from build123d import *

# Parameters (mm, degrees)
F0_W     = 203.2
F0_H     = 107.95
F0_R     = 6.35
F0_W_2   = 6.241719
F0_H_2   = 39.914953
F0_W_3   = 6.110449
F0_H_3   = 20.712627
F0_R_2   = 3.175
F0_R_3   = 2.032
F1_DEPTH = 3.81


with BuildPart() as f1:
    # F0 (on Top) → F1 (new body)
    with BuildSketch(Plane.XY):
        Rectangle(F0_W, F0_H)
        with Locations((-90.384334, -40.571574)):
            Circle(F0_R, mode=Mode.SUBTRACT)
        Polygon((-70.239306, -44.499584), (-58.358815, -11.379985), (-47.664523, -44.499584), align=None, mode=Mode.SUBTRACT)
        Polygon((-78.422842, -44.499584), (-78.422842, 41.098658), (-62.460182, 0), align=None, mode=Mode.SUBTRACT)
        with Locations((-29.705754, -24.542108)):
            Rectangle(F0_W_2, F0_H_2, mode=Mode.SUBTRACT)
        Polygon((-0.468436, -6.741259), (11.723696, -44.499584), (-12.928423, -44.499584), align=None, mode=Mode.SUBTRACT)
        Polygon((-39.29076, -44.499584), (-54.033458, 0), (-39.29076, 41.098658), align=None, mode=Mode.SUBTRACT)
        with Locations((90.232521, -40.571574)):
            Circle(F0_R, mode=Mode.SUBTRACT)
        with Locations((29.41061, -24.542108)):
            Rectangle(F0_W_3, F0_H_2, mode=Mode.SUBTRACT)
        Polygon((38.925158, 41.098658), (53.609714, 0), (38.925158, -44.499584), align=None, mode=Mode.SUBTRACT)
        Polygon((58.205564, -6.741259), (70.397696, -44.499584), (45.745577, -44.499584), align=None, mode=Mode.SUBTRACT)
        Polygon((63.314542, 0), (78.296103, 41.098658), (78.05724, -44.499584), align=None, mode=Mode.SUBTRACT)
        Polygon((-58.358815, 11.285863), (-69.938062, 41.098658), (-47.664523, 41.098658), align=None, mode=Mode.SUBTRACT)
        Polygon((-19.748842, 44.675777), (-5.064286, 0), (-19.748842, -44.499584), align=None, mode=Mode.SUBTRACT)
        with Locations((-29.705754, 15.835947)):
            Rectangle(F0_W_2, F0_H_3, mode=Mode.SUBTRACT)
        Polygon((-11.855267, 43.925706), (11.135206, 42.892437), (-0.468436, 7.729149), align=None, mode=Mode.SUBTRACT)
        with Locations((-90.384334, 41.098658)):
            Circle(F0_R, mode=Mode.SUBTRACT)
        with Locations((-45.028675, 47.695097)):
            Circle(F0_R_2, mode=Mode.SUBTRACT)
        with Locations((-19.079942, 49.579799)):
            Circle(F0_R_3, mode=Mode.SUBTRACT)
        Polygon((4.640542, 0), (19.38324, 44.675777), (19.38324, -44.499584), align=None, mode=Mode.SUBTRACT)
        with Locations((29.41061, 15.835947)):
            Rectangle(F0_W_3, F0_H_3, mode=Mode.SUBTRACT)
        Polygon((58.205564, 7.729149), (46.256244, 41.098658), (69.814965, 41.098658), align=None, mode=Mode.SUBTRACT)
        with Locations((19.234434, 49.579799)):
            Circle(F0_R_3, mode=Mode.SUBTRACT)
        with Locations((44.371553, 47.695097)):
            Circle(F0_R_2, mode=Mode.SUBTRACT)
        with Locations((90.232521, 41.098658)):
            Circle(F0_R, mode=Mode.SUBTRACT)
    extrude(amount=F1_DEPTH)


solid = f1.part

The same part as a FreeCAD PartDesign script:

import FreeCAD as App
import Part
import Sketcher

V = App.Vector
Q = App.Units.Quantity


def add_polygon(sketch, points):
    """Adds a closed chain of lines whose ends are joined by coincident constraints."""
    first, n = sketch.GeometryCount, len(points)
    for a, b in zip(points, points[1:] + points[:1]):
        sketch.addGeometry(Part.LineSegment(App.Vector(*a, 0), App.Vector(*b, 0)), False)
    for i in range(n):
        sketch.addConstraint(Sketcher.Constraint("Coincident", first + i, 2, first + (i + 1) % n, 1))

doc = App.newDocument("Part")
params = doc.addObject("Spreadsheet::Sheet", "Params")
for row, (alias, value) in enumerate([
    ("sketch1_diameter", "0.5 in"),
    ("sketch1_diameter2", "0.25 in"),
    ("sketch1_diameter3", "0.16 in"),
    ("sketch1_width", "8 in"),
    ("sketch1_height", "4.25 in"),
    ("pad1_length", "0.15 in"),
], start=1):
    params.set(f"A{row}", alias)
    params.set(f"B{row}", "=" + value)
    params.setAlias(f"B{row}", alias)

body = doc.addObject("PartDesign::Body", "Body")

# Sketch on XY plane
sketch1 = body.newObject("Sketcher::SketchObject", "Sketch")
sketch1.AttachmentSupport = (doc.getObject("XY_Plane"), [""])
sketch1.MapMode = "FlatFace"
add_polygon(sketch1, [(-101.6, 54), (-101.6, -54), (101.6, -54), (101.6, 54)])  # lines 0-3
sketch1.addGeometry(Part.Circle(V(-90.4, -40.6, 0), V(0, 0, 1), 6.3), False)  # 4
add_polygon(sketch1, [(-47.7, -44.5), (-70.2, -44.5), (-58.4, -11.4)])  # lines 5-7
add_polygon(sketch1, [(-26.6, -44.5), (-32.8, -44.5), (-32.8, -4.6), (-26.6, -4.6)])  # lines 8-11
add_polygon(sketch1, [(-12.9, -44.5), (-0.5, -6.7), (11.7, -44.5)])  # lines 12-14
add_polygon(sketch1, [(-62.5, 0), (-78.4, -44.5), (-78.4, 41.1)])  # lines 15-17
add_polygon(sketch1, [(-39.3, 41.1), (-39.3, -44.5), (-54, 0)])  # lines 18-20
add_polygon(sketch1, [(-19.7, -44.5), (-19.7, 44.7), (-5.1, 0)])  # lines 21-23
add_polygon(sketch1, [(32.5, -44.5), (26.4, -44.5), (26.4, -4.6), (32.5, -4.6)])  # lines 24-27
sketch1.addGeometry(Part.Circle(V(90.2, -40.6, 0), V(0, 0, 1), 6.3), False)  # 28
add_polygon(sketch1, [(45.7, -44.5), (58.2, -6.7), (70.4, -44.5)])  # lines 29-31
add_polygon(sketch1, [(19.4, -44.5), (4.6, 0), (19.4, 44.7)])  # lines 32-34
add_polygon(sketch1, [(38.9, -44.5), (38.9, 41.1), (53.6, 0)])  # lines 35-37
add_polygon(sketch1, [(78.1, -44.5), (63.3, 0), (78.3, 41.1)])  # lines 38-40
add_polygon(sketch1, [(-47.7, 41.1), (-58.4, 11.3), (-69.9, 41.1)])  # lines 41-43
add_polygon(sketch1, [(-26.6, 5.5), (-32.8, 5.5), (-32.8, 26.2), (-26.6, 26.2)])  # lines 44-47
add_polygon(sketch1, [(-0.5, 7.7), (-11.9, 43.9), (11.1, 42.9)])  # lines 48-50
sketch1.addGeometry(Part.Circle(V(-90.4, 41.1, 0), V(0, 0, 1), 6.3), False)  # 51
sketch1.addGeometry(Part.Circle(V(-45, 47.7, 0), V(0, 0, 1), 3.2), False)  # 52
sketch1.addGeometry(Part.Circle(V(-19.1, 49.6, 0), V(0, 0, 1), 2), False)  # 53
add_polygon(sketch1, [(32.5, 5.5), (26.4, 5.5), (26.4, 26.2), (32.5, 26.2)])  # lines 54-57
add_polygon(sketch1, [(69.8, 41.1), (58.2, 7.7), (46.3, 41.1)])  # lines 58-60
sketch1.addGeometry(Part.Circle(V(19.2, 49.6, 0), V(0, 0, 1), 2), False)  # 61
sketch1.addGeometry(Part.Circle(V(44.4, 47.7, 0), V(0, 0, 1), 3.2), False)  # 62
sketch1.addGeometry(Part.Circle(V(90.2, 41.1, 0), V(0, 0, 1), 6.3), False)  # 63
sketch1.addConstraint(Sketcher.Constraint("Vertical", 0))
sketch1.addConstraint(Sketcher.Constraint("Horizontal", 1))
sketch1.addConstraint(Sketcher.Constraint("Vertical", 2))
sketch1.addConstraint(Sketcher.Constraint("Horizontal", 3))
sketch1.addConstraint(Sketcher.Constraint("Horizontal", 5))
sketch1.addConstraint(Sketcher.Constraint("Horizontal", 8))
sketch1.addConstraint(Sketcher.Constraint("Vertical", 9))
sketch1.addConstraint(Sketcher.Constraint("Horizontal", 10))
sketch1.addConstraint(Sketcher.Constraint("Vertical", 11))
sketch1.addConstraint(Sketcher.Constraint("Horizontal", 14))
sketch1.addConstraint(Sketcher.Constraint("Vertical", 16))
sketch1.addConstraint(Sketcher.Constraint("Vertical", 18))
sketch1.addConstraint(Sketcher.Constraint("Vertical", 21))
sketch1.addConstraint(Sketcher.Constraint("Horizontal", 24))
sketch1.addConstraint(Sketcher.Constraint("Vertical", 25))
sketch1.addConstraint(Sketcher.Constraint("Horizontal", 26))
sketch1.addConstraint(Sketcher.Constraint("Vertical", 27))
sketch1.addConstraint(Sketcher.Constraint("Horizontal", 31))
sketch1.addConstraint(Sketcher.Constraint("Vertical", 34))
sketch1.addConstraint(Sketcher.Constraint("Vertical", 35))
sketch1.addConstraint(Sketcher.Constraint("Horizontal", 43))
sketch1.addConstraint(Sketcher.Constraint("Horizontal", 44))
sketch1.addConstraint(Sketcher.Constraint("Vertical", 45))
sketch1.addConstraint(Sketcher.Constraint("Horizontal", 46))
sketch1.addConstraint(Sketcher.Constraint("Vertical", 47))
sketch1.addConstraint(Sketcher.Constraint("Horizontal", 54))
sketch1.addConstraint(Sketcher.Constraint("Vertical", 55))
sketch1.addConstraint(Sketcher.Constraint("Horizontal", 56))
sketch1.addConstraint(Sketcher.Constraint("Vertical", 57))
sketch1.addConstraint(Sketcher.Constraint("Horizontal", 60))
sketch1.addConstraint(Sketcher.Constraint("Equal", 4, 28))
sketch1.addConstraint(Sketcher.Constraint("Equal", 28, 51))
sketch1.addConstraint(Sketcher.Constraint("Equal", 53, 61))
sketch1.addConstraint(Sketcher.Constraint("Equal", 52, 62))
sketch1.addConstraint(Sketcher.Constraint("Equal", 51, 63))
sketch1.addConstraint(Sketcher.Constraint("Symmetric", 0, 2, 2, 2, -1, 1))
sketch1.addConstraint(Sketcher.Constraint("PointOnObject", 17, 2, -1))
sketch1.addConstraint(Sketcher.Constraint("PointOnObject", 19, 2, -1))
sketch1.addConstraint(Sketcher.Constraint("PointOnObject", 22, 2, -1))
sketch1.addConstraint(Sketcher.Constraint("PointOnObject", 32, 2, -1))
sketch1.addConstraint(Sketcher.Constraint("PointOnObject", 36, 2, -1))
sketch1.addConstraint(Sketcher.Constraint("PointOnObject", 38, 2, -1))
sketch1.addConstraint(Sketcher.Constraint("Parallel", 7, 13))
sketch1.addConstraint(Sketcher.Constraint("Parallel", 6, 15))
sketch1.addConstraint(Sketcher.Constraint("Parallel", 15, 20))
sketch1.addConstraint(Sketcher.Constraint("Parallel", 12, 23))
sketch1.addConstraint(Sketcher.Constraint("Parallel", 23, 29))
sketch1.addConstraint(Sketcher.Constraint("Parallel", 13, 30))
sketch1.addConstraint(Sketcher.Constraint("Parallel", 19, 32))
sketch1.addConstraint(Sketcher.Constraint("Parallel", 29, 33))
sketch1.addConstraint(Sketcher.Constraint("Parallel", 33, 37))
sketch1.addConstraint(Sketcher.Constraint("Parallel", 32, 38))
sketch1.addConstraint(Sketcher.Constraint("Parallel", 20, 41))
sketch1.addConstraint(Sketcher.Constraint("Parallel", 17, 42))
sketch1.addConstraint(Sketcher.Constraint("Parallel", 37, 50))
sketch1.addConstraint(Sketcher.Constraint("Horizontal", 4, 3, 28, 3))
sketch1.addConstraint(Sketcher.Constraint("Horizontal", 53, 3, 61, 3))
sketch1.addConstraint(Sketcher.Constraint("Horizontal", 52, 3, 62, 3))
sketch1.addConstraint(Sketcher.Constraint("Horizontal", 51, 3, 63, 3))
sketch1.addConstraint(Sketcher.Constraint("Horizontal", 7, 2, 8, 2))
sketch1.addConstraint(Sketcher.Constraint("Horizontal", 11, 2, 13, 2))
sketch1.addConstraint(Sketcher.Constraint("Horizontal", 14, 2, 15, 2))
sketch1.addConstraint(Sketcher.Constraint("Horizontal", 63, 3, 16, 2))
sketch1.addConstraint(Sketcher.Constraint("Horizontal", 15, 2, 18, 2))
sketch1.addConstraint(Sketcher.Constraint("Horizontal", 16, 2, 20, 2))
sketch1.addConstraint(Sketcher.Constraint("Horizontal", 18, 2, 23, 2))
sketch1.addConstraint(Sketcher.Constraint("Horizontal", 23, 2, 24, 2))
sketch1.addConstraint(Sketcher.Constraint("Horizontal", 10, 2, 25, 2))
sketch1.addConstraint(Sketcher.Constraint("Horizontal", 12, 2, 29, 2))
sketch1.addConstraint(Sketcher.Constraint("Horizontal", 27, 2, 30, 2))
sketch1.addConstraint(Sketcher.Constraint("Horizontal", 21, 2, 33, 2))
sketch1.addConstraint(Sketcher.Constraint("Horizontal", 31, 2, 34, 2))
sketch1.addConstraint(Sketcher.Constraint("Horizontal", 20, 2, 35, 2))
sketch1.addConstraint(Sketcher.Constraint("Horizontal", 34, 2, 37, 2))
sketch1.addConstraint(Sketcher.Constraint("Horizontal", 35, 2, 39, 2))
sketch1.addConstraint(Sketcher.Constraint("Horizontal", 37, 2, 40, 2))
sketch1.addConstraint(Sketcher.Constraint("Horizontal", 39, 2, 42, 2))
sketch1.addConstraint(Sketcher.Constraint("Horizontal", 47, 2, 54, 2))
sketch1.addConstraint(Sketcher.Constraint("Horizontal", 46, 2, 55, 2))
sketch1.addConstraint(Sketcher.Constraint("Horizontal", 50, 2, 58, 2))
sketch1.addConstraint(Sketcher.Constraint("Horizontal", 43, 2, 59, 2))
sketch1.addConstraint(Sketcher.Constraint("Vertical", 4, 3, 51, 3))
sketch1.addConstraint(Sketcher.Constraint("Vertical", 28, 3, 63, 3))
sketch1.addConstraint(Sketcher.Constraint("Vertical", 6, 2, 41, 2))
sketch1.addConstraint(Sketcher.Constraint("Vertical", 7, 2, 43, 2))
sketch1.addConstraint(Sketcher.Constraint("Vertical", 9, 2, 44, 2))
sketch1.addConstraint(Sketcher.Constraint("Vertical", 11, 2, 46, 2))
sketch1.addConstraint(Sketcher.Constraint("Vertical", 12, 2, 50, 2))
sketch1.addConstraint(Sketcher.Constraint("Vertical", 25, 2, 54, 2))
sketch1.addConstraint(Sketcher.Constraint("Vertical", 27, 2, 56, 2))
sketch1.addConstraint(Sketcher.Constraint("Vertical", 29, 2, 58, 2))
sketch1.addConstraint(Sketcher.Constraint("Diameter", 4, Q("0.5 in")))
sketch1.addConstraint(Sketcher.Constraint("Diameter", 52, Q("0.25 in")))
sketch1.addConstraint(Sketcher.Constraint("Diameter", 53, Q("0.16 in")))
sketch1.addConstraint(Sketcher.Constraint("DistanceX", 1, 1, 1, 2, Q("8 in")))
sketch1.addConstraint(Sketcher.Constraint("DistanceY", 0, 2, 0, 1, Q("4.25 in")))
sketch1.addConstraint(Sketcher.Constraint("Angle", 19, Q("108.330017 deg")))
sketch1.addConstraint(Sketcher.Constraint("DistanceX", 8, 2, 8, 1, Q("6.241719 mm")))
sketch1.addConstraint(Sketcher.Constraint("DistanceX", 14, 2, 14, 1, Q("24.652119 mm")))
sketch1.addConstraint(Sketcher.Constraint("DistanceX", 24, 2, 24, 1, Q("6.110449 mm")))
sketch1.addConstraint(Sketcher.Constraint("DistanceX", 43, 1, 43, 2, Q("22.273539 mm")))
sketch1.addConstraint(Sketcher.Constraint("DistanceX", 60, 1, 60, 2, Q("23.558721 mm")))
sketch1.addConstraint(Sketcher.Constraint("DistanceY", 16, 1, 16, 2, Q("85.598242 mm")))
sketch1.addConstraint(Sketcher.Constraint("DistanceY", 21, 1, 21, 2, Q("89.175361 mm")))
sketch1.addConstraint(Sketcher.Constraint("DistanceY", -1, 1, 53, 3, Q("49.579799 mm")))
sketch1.addConstraint(Sketcher.Constraint("Distance", 6, Q("35.18599 mm")))
sketch1.addConstraint(Sketcher.Constraint("Distance", 17, Q("44.089752 mm")))
sketch1.addConstraint(Sketcher.Constraint("Distance", 49, Q("23.013681 mm")))
sketch1.addConstraint(Sketcher.Constraint("Distance", 59, Q("35.444469 mm")))
sketch1.addConstraint(Sketcher.Constraint("DistanceY", 9, 1, 9, 2, Q("39.914953 mm")))
sketch1.addConstraint(Sketcher.Constraint("DistanceY", 45, 1, 45, 2, Q("20.712627 mm")))
sketch1.addConstraint(Sketcher.Constraint("DistanceX", -1, 1, 28, 3, Q("90.232521 mm")))
sketch1.addConstraint(Sketcher.Constraint("DistanceX", 53, 3, -1, 1, Q("19.079942 mm")))
sketch1.addConstraint(Sketcher.Constraint("DistanceX", 18, 2, -1, 1, Q("39.29076 mm")))
sketch1.addConstraint(Sketcher.Constraint("DistanceX", 21, 2, -1, 1, Q("19.748842 mm")))
sketch1.addConstraint(Sketcher.Constraint("DistanceX", -1, 1, 33, 2, Q("19.38324 mm")))
sketch1.addConstraint(Sketcher.Constraint("DistanceX", -1, 1, 35, 2, Q("38.925158 mm")))
sketch1.addConstraint(Sketcher.Constraint("DistanceX", -1, 1, 40, 2, Q("78.05724 mm")))
sketch1.addConstraint(Sketcher.Constraint("DistanceY", -1, 1, 45, 2, Q("26.19226 mm")))
sketch1.addConstraint(Sketcher.Constraint("DistanceY", -1, 1, 50, 2, Q("7.729149 mm")))
sketch1.addConstraint(Sketcher.Constraint("Distance", 39, Q("43.744107 mm")))
sketch1.addConstraint(Sketcher.Constraint("Distance", 48, Q("37.945364 mm")))
sketch1.addConstraint(Sketcher.Constraint("Distance", 50, Q("37.028385 mm")))
sketch1.addConstraint(Sketcher.Constraint("DistanceX", 4, 3, -1, 1, Q("90.384334 mm")))
sketch1.addConstraint(Sketcher.Constraint("DistanceY", 4, 3, -1, 1, Q("40.571574 mm")))
sketch1.addConstraint(Sketcher.Constraint("DistanceX", 52, 3, -1, 1, Q("45.028675 mm")))
sketch1.addConstraint(Sketcher.Constraint("DistanceY", -1, 1, 52, 3, Q("47.695097 mm")))
sketch1.addConstraint(Sketcher.Constraint("DistanceX", -1, 1, 61, 3, Q("19.234434 mm")))
sketch1.addConstraint(Sketcher.Constraint("DistanceX", -1, 1, 62, 3, Q("44.371553 mm")))
sketch1.addConstraint(Sketcher.Constraint("DistanceX", 5, 2, -1, 1, Q("70.239306 mm")))
sketch1.addConstraint(Sketcher.Constraint("DistanceX", 8, 2, -1, 1, Q("32.826614 mm")))
sketch1.addConstraint(Sketcher.Constraint("DistanceX", 12, 2, -1, 1, Q("0.468436 mm")))
sketch1.addConstraint(Sketcher.Constraint("DistanceX", 15, 2, -1, 1, Q("78.422842 mm")))
sketch1.addConstraint(Sketcher.Constraint("DistanceX", -1, 1, 24, 2, Q("26.355386 mm")))
sketch1.addConstraint(Sketcher.Constraint("DistanceX", -1, 1, 29, 2, Q("58.205564 mm")))
sketch1.setExpression("Constraints[147]", "Params.sketch1_diameter")
sketch1.setExpression("Constraints[148]", "Params.sketch1_diameter2")
sketch1.setExpression("Constraints[149]", "Params.sketch1_diameter3")
sketch1.setExpression("Constraints[150]", "Params.sketch1_width")
sketch1.setExpression("Constraints[151]", "Params.sketch1_height")
pad1 = body.newObject("PartDesign::Pad", "Pad")
pad1.Profile = sketch1
pad1.setExpression("Length", "Params.pad1_length")

doc.recompute()
